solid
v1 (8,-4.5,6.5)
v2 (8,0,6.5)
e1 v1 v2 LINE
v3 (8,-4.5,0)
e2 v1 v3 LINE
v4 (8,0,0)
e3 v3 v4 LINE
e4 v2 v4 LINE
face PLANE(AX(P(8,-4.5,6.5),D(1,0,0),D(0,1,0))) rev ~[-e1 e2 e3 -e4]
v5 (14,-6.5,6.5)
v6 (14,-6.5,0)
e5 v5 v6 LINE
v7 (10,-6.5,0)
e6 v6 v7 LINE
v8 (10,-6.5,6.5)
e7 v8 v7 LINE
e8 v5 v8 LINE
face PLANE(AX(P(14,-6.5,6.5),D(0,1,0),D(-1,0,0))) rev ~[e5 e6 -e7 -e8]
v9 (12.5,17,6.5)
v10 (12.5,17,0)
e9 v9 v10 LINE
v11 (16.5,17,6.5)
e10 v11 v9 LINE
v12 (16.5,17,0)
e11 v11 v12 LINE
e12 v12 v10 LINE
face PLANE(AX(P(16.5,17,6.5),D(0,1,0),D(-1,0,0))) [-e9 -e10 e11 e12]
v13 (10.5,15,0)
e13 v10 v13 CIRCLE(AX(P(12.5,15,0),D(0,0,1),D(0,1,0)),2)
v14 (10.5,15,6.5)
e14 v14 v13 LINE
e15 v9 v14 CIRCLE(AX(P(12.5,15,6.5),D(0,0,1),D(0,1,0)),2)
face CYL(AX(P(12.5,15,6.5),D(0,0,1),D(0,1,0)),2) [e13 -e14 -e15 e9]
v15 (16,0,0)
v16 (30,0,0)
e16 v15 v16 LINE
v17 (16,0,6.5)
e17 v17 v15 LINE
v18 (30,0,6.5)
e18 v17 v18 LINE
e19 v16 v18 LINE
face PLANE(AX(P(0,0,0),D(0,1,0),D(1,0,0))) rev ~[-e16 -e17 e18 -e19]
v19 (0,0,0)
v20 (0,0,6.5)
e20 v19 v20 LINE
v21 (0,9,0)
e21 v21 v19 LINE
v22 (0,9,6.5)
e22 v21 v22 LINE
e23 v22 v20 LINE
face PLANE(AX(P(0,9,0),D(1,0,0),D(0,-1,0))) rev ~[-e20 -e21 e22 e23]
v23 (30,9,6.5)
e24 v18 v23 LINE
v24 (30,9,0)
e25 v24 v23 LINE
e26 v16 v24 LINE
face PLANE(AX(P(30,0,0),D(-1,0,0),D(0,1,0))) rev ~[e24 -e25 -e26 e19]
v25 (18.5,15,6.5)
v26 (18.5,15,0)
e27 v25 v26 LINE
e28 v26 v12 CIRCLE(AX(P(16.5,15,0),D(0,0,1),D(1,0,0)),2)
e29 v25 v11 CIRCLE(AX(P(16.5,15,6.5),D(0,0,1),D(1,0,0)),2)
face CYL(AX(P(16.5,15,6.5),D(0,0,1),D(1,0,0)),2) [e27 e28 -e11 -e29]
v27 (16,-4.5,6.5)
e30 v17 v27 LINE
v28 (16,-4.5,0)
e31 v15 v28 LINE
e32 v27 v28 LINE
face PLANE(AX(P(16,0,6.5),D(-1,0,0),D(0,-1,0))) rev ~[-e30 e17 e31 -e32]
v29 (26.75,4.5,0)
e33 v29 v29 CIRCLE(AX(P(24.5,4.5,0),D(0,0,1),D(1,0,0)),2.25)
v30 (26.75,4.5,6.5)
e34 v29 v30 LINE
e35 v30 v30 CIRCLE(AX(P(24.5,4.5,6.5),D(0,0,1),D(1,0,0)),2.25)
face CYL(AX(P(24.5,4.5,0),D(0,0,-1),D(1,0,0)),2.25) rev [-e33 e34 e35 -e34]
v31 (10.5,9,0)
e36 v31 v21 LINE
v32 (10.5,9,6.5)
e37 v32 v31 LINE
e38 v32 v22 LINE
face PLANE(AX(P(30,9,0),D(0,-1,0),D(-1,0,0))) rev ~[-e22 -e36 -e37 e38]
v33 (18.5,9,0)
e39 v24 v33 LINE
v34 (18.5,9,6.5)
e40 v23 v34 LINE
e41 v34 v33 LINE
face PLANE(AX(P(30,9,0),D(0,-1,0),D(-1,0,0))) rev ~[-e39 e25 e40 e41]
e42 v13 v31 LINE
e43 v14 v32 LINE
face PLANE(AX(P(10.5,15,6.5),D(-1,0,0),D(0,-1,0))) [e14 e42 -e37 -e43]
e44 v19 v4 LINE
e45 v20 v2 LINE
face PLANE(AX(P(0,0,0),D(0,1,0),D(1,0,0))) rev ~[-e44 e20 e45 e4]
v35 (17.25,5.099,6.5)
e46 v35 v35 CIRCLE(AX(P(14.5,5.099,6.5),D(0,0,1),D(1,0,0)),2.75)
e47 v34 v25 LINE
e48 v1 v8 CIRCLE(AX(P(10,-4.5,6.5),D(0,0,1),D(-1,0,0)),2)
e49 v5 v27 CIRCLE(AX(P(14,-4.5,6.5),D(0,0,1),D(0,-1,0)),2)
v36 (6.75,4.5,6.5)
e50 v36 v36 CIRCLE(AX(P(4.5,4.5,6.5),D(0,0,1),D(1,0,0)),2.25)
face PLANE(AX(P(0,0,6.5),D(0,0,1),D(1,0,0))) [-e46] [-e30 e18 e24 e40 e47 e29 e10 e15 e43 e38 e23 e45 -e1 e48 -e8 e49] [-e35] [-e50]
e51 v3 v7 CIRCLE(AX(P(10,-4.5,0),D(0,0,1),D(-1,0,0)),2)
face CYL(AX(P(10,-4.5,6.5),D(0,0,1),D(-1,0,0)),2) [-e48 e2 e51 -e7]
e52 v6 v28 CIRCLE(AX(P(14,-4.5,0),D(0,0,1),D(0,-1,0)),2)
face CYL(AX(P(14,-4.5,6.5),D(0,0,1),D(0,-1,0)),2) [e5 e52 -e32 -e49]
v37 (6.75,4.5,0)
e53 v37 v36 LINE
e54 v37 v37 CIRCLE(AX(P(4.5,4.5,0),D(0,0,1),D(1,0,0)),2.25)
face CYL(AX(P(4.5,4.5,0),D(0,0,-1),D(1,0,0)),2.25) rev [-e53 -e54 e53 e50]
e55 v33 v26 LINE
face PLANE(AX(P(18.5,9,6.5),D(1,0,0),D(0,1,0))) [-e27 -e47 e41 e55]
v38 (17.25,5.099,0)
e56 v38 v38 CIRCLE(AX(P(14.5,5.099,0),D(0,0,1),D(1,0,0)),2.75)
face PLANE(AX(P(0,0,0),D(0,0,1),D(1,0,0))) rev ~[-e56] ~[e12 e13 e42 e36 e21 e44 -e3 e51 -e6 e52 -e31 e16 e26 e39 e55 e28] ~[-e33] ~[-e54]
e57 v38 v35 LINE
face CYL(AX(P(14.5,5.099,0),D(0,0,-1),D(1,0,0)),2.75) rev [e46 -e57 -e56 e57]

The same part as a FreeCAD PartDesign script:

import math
import FreeCAD as App
import Part
import Sketcher
from FreeCAD import Vector

doc = App.newDocument("Part")
params = doc.addObject("Spreadsheet::Sheet", "Params")
for row, (alias, value) in enumerate([
    ("sketch1_diameter", "4.5 mm"),
    ("sketch1_diameter2", "5.5 mm"),
    ("sketch1_width", "30 mm"),
    ("sketch1_height", "9 mm"),
    ("pad1_length", "6.5 mm"),
    ("sketch2_radius", "2 mm"),
    ("sketch2_width", "8 mm"),
    ("pad2_length", "6.5 mm"),
], start=1):
    params.set(f"A{row}", alias)
    params.set(f"B{row}", "=" + value)
    params.setAlias(f"B{row}", alias)

body = doc.addObject("PartDesign::Body", "Body")

sketch1 = body.newObject("Sketcher::SketchObject", "Sketch")
sketch1.AttachmentSupport = (doc.getObject("XY_Plane"), [""])
sketch1.MapMode = "FlatFace"
sketch1.addGeometry(Part.LineSegment(Vector(0, 9, 0), Vector(0, 0, 0)), False)
sketch1.addGeometry(Part.LineSegment(Vector(0, 0, 0), Vector(30, 0, 0)), False)
sketch1.addGeometry(Part.LineSegment(Vector(30, 0, 0), Vector(30, 9, 0)), False)
sketch1.addGeometry(Part.LineSegment(Vector(30, 9, 0), Vector(0, 9, 0)), False)
sketch1.addGeometry(Part.Circle(Vector(4.5, 4.5, 0), Vector(0, 0, 1), 2.2), False)
sketch1.addGeometry(Part.Circle(Vector(14.5, 5.1, 0), Vector(0, 0, 1), 2.8), False)
sketch1.addGeometry(Part.Circle(Vector(24.5, 4.5, 0), Vector(0, 0, 1), 2.2), False)
sketch1.addConstraint(Sketcher.Constraint("Coincident", 0, 2, 1, 1))
sketch1.addConstraint(Sketcher.Constraint("Coincident", 1, 2, 2, 1))
sketch1.addConstraint(Sketcher.Constraint("Coincident", 2, 2, 3, 1))
sketch1.addConstraint(Sketcher.Constraint("Coincident", 3, 2, 0, 1))
sketch1.addConstraint(Sketcher.Constraint("Vertical", 0))
sketch1.addConstraint(Sketcher.Constraint("Horizontal", 1))
sketch1.addConstraint(Sketcher.Constraint("Vertical", 2))
sketch1.addConstraint(Sketcher.Constraint("Horizontal", 3))
sketch1.addConstraint(Sketcher.Constraint("Coincident", 0, 2, -1, 1))
sketch1.addConstraint(Sketcher.Constraint("Equal", 4, 6))
sketch1.addConstraint(Sketcher.Constraint("Horizontal", 4, 3, 6, 3))
sketch1.addConstraint(Sketcher.Constraint("Diameter", 4, 4.5))
sketch1.addConstraint(Sketcher.Constraint("Diameter", 5, 5.5))
sketch1.addConstraint(Sketcher.Constraint("DistanceX", 1, 1, 1, 2, 30.0))
sketch1.addConstraint(Sketcher.Constraint("DistanceY", 0, 2, 0, 1, 9.0))
sketch1.addConstraint(Sketcher.Constraint("DistanceX", 4, 3, 5, 3, 10.0))
sketch1.addConstraint(Sketcher.Constraint("DistanceX", 5, 3, 6, 3, 10.0))
sketch1.addConstraint(Sketcher.Constraint("DistanceX", -1, 1, 4, 3, 4.5))
sketch1.addConstraint(Sketcher.Constraint("DistanceY", -1, 1, 4, 3, 4.5))
sketch1.addConstraint(Sketcher.Constraint("DistanceY", -1, 1, 5, 3, 5.099))
sketch1.setExpression("Constraints[11]", "Params.sketch1_diameter")
sketch1.setExpression("Constraints[12]", "Params.sketch1_diameter2")
sketch1.setExpression("Constraints[13]", "Params.sketch1_width")
sketch1.setExpression("Constraints[14]", "Params.sketch1_height")
pad1 = body.newObject("PartDesign::Pad", "Pad")
pad1.Profile = sketch1
pad1.setExpression("Length", "Params.pad1_length")

sketch2 = body.newObject("Sketcher::SketchObject", "Sketch001")
sketch2.AttachmentSupport = (doc.getObject("XY_Plane"), [""])
sketch2.MapMode = "FlatFace"
sketch2.AttachmentOffset = App.Placement(Vector(0, 0, 6.5), App.Rotation())
sketch2.addGeometry(Part.LineSegment(Vector(10.5, 9, 0), Vector(18.5, 9, 0)), False)
sketch2.addGeometry(Part.LineSegment(Vector(18.5, 9, 0), Vector(18.5, 15, 0)), False)
sketch2.addGeometry(Part.ArcOfCircle(Part.Circle(Vector(16.5, 15, 0), Vector(0, 0, 1), 2), math.radians(0), math.radians(90)), False)
sketch2.addGeometry(Part.LineSegment(Vector(16.5, 17, 0), Vector(12.5, 17, 0)), False)
sketch2.addGeometry(Part.ArcOfCircle(Part.Circle(Vector(12.5, 15, 0), Vector(0, 0, 1), 2), math.radians(90), math.radians(180)), False)
sketch2.addGeometry(Part.LineSegment(Vector(10.5, 15, 0), Vector(10.5, 9, 0)), False)
sketch2.addGeometry(Part.LineSegment(Vector(16, 0, 0), Vector(8, 0, 0)), False)
sketch2.addGeometry(Part.LineSegment(Vector(8, 0, 0), Vector(8, -4.5, 0)), False)
sketch2.addGeometry(Part.ArcOfCircle(Part.Circle(Vector(10, -4.5, 0), Vector(0, 0, 1), 2), math.radians(180), math.radians(270)), False)
sketch2.addGeometry(Part.LineSegment(Vector(10, -6.5, 0), Vector(14, -6.5, 0)), False)
sketch2.addGeometry(Part.ArcOfCircle(Part.Circle(Vector(14, -4.5, 0), Vector(0, 0, 1), 2), math.radians(-90), math.radians(0)), False)
sketch2.addGeometry(Part.LineSegment(Vector(16, -4.5, 0), Vector(16, 0, 0)), False)
sketch2.addConstraint(Sketcher.Constraint("Coincident", 0, 2, 1, 1))
sketch2.addConstraint(Sketcher.Constraint("Tangent", 1, 2, 2, 1))
sketch2.addConstraint(Sketcher.Constraint("Tangent", 2, 2, 3, 1))
sketch2.addConstraint(Sketcher.Constraint("Tangent", 3, 2, 4, 1))
sketch2.addConstraint(Sketcher.Constraint("Tangent", 4, 2, 5, 1))
sketch2.addConstraint(Sketcher.Constraint("Coincident", 5, 2, 0, 1))
sketch2.addConstraint(Sketcher.Constraint("Coincident", 6, 2, 7, 1))
sketch2.addConstraint(Sketcher.Constraint("Tangent", 7, 2, 8, 1))
sketch2.addConstraint(Sketcher.Constraint("Tangent", 8, 2, 9, 1))
sketch2.addConstraint(Sketcher.Constraint("Tangent", 9, 2, 10, 1))
sketch2.addConstraint(Sketcher.Constraint("Tangent", 10, 2, 11, 1))
sketch2.addConstraint(Sketcher.Constraint("Coincident", 11, 2, 6, 1))
sketch2.addConstraint(Sketcher.Constraint("Horizontal", 0))
sketch2.addConstraint(Sketcher.Constraint("Vertical", 1))
sketch2.addConstraint(Sketcher.Constraint("Horizontal", 3))
sketch2.addConstraint(Sketcher.Constraint("Vertical", 5))
sketch2.addConstraint(Sketcher.Constraint("Horizontal", 6))
sketch2.addConstraint(Sketcher.Constraint("Vertical", 7))
sketch2.addConstraint(Sketcher.Constraint("Horizontal", 9))
sketch2.addConstraint(Sketcher.Constraint("Vertical", 11))
sketch2.addConstraint(Sketcher.Constraint("Equal", 2, 4))
sketch2.addConstraint(Sketcher.Constraint("Equal", 4, 8))
sketch2.addConstraint(Sketcher.Constraint("Equal", 8, 10))
sketch2.addConstraint(Sketcher.Constraint("PointOnObject", 6, 2, -1))
sketch2.addConstraint(Sketcher.Constraint("Equal", 0, 6))
sketch2.addConstraint(Sketcher.Constraint("Radius", 2, 2.0))
sketch2.addConstraint(Sketcher.Constraint("DistanceX", 0, 1, 0, 2, 8.0))
sketch2.addConstraint(Sketcher.Constraint("DistanceX", -1, 1, 10, 3, 14.0))
sketch2.addConstraint(Sketcher.Constraint("DistanceY", 0, 2, 2, 2, 8.0))
sketch2.addConstraint(Sketcher.Constraint("DistanceY", 8, 2, -1, 1, 6.5))
sketch2.addConstraint(Sketcher.Constraint("DistanceX", 8, 3, 2, 3, 6.5))
sketch2.addConstraint(Sketcher.Constraint("DistanceY", -1, 1, 2, 3, 15.0))
sketch2.setExpression("Constraints[25]", "Params.sketch2_radius")
sketch2.setExpression("Constraints[26]", "Params.sketch2_width")
pad2 = body.newObject("PartDesign::Pad", "Pad001")
pad2.Profile = sketch2
pad2.setExpression("Length", "Params.pad2_length")
pad2.Reversed = True

doc.recompute()
